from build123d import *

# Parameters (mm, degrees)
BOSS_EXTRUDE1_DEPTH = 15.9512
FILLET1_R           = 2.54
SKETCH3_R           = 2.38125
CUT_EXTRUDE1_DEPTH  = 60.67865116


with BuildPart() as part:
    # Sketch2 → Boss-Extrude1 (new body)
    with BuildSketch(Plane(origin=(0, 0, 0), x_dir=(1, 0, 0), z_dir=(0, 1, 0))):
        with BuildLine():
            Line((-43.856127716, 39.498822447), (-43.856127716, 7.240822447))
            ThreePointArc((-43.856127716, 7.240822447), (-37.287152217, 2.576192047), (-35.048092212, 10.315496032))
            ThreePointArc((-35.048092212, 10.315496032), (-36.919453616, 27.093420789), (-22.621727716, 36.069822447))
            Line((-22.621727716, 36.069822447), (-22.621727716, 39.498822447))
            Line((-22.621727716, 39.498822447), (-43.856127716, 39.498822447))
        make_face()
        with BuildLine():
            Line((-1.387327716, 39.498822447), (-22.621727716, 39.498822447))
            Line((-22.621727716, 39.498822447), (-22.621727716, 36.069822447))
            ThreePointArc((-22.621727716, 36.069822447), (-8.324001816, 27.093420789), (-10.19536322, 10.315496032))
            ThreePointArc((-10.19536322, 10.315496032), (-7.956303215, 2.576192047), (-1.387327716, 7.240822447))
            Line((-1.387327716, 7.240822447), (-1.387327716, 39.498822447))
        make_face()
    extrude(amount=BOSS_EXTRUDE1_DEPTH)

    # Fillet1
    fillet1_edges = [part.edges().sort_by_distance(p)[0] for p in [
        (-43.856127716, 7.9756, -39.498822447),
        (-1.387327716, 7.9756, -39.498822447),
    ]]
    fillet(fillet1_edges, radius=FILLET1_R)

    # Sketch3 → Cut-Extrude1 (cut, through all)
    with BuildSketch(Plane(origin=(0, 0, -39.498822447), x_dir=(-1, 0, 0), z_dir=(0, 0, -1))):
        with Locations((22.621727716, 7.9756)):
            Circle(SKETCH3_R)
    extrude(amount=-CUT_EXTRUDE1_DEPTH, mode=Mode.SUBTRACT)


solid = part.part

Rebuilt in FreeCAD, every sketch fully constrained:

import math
import FreeCAD as App
import Part
import Sketcher
Q = App.Units.Quantity


def edges_at(feature, points):
    """Names of the edges that pass closest to the given points."""
    edges = feature.Shape.Edges
    near = lambda p: min(range(len(edges)), key=lambda i: edges[i].distToShape(Part.Vertex(*p))[0])
    return sorted({f"Edge{near(p) + 1}" for p in points})

doc = App.newDocument("Part")
body = doc.addObject("PartDesign::Body", "Body")

sketch1 = doc.addObject("Sketcher::SketchObject", "Sketch")
body.addObject(sketch1)
sketch1.AttachmentSupport = (doc.XZ_Plane, [""])
sketch1.MapMode = "FlatFace"
sketch1.addGeometry(Part.LineSegment(App.Vector(-43.9, -39.5, 0), App.Vector(-43.9, -7.2, 0)), False)
sketch1.addGeometry(Part.ArcOfCircle(Part.Circle(App.Vector(-38.9, -7.2, 0), App.Vector(0, 0, 1), 4.9), math.radians(-38), math.radians(180)), False)
sketch1.addGeometry(Part.ArcOfCircle(Part.Circle(App.Vector(-22.6, -20.2, 0), App.Vector(0, 0, 1), 15.9), math.radians(142), math.radians(270)), False)
sketch1.addGeometry(Part.ArcOfCircle(Part.Circle(App.Vector(-22.6, -20.2, 0), App.Vector(0, 0, 1), 15.9), math.radians(-90), math.radians(38)), False)
sketch1.addGeometry(Part.ArcOfCircle(Part.Circle(App.Vector(-6.3, -7.2, 0), App.Vector(0, 0, 1), 4.9), math.radians(0), math.radians(218)), False)
sketch1.addGeometry(Part.LineSegment(App.Vector(-1.4, -7.2, 0), App.Vector(-1.4, -39.5, 0)), False)
sketch1.addGeometry(Part.LineSegment(App.Vector(-1.4, -39.5, 0), App.Vector(-43.9, -39.5, 0)), False)
sketch1.addConstraint(Sketcher.Constraint("Tangent", 0, 2, 1, 2))
sketch1.addConstraint(Sketcher.Constraint("Tangent", 1, 1, 2, 1))
sketch1.addConstraint(Sketcher.Constraint("Tangent", 2, 2, 3, 1))
sketch1.addConstraint(Sketcher.Constraint("Tangent", 3, 2, 4, 2))
sketch1.addConstraint(Sketcher.Constraint("Tangent", 4, 1, 5, 1))
sketch1.addConstraint(Sketcher.Constraint("Coincident", 5, 2, 6, 1))
sketch1.addConstraint(Sketcher.Constraint("Coincident", 6, 2, 0, 1))
sketch1.addConstraint(Sketcher.Constraint("Vertical", 0))
sketch1.addConstraint(Sketcher.Constraint("Vertical", 5))
sketch1.addConstraint(Sketcher.Constraint("Horizontal", 6))
sketch1.addConstraint(Sketcher.Constraint("Equal", 2, 3))
sketch1.addConstraint(Sketcher.Constraint("Equal", 1, 4))
sketch1.addConstraint(Sketcher.Constraint("Horizontal", 1, 3, 4, 3))
sketch1.addConstraint(Sketcher.Constraint("Vertical", 3, 3, 2, 2))
sketch1.addConstraint(Sketcher.Constraint("Radius", 2, Q("0.625 in")))
sketch1.addConstraint(Sketcher.Constraint("DistanceY", 0, 1, 0, 2, Q("1.27 in")))
sketch1.addConstraint(Sketcher.Constraint("DistanceX", 6, 2, 6, 1, Q("1.672 in")))
sketch1.addConstraint(Sketcher.Constraint("DistanceY", 2, 3, 1, 3, Q("0.51 in")))
sketch1.addConstraint(Sketcher.Constraint("DistanceX", 1, 3, -1, 1, Q("38.915463 mm")))
sketch1.addConstraint(Sketcher.Constraint("DistanceY", 1, 3, -1, 1, Q("7.240822 mm")))
pad1 = doc.addObject("PartDesign::Pad", "Pad")
body.addObject(pad1)
pad1.Profile = sketch1
pad1.Length = Q("0.628 in")
pad1.Reversed = True
doc.recompute()

fillet = doc.addObject("PartDesign::Fillet", "Fillet")
body.addObject(fillet)
fillet.Base = (pad1, edges_at(pad1, [(-43.856, 7.976, -39.499), (-1.387, 7.976, -39.499)]))
fillet.Radius = Q("0.1 in")

sketch2 = doc.addObject("Sketcher::SketchObject", "Sketch001")
body.addObject(sketch2)
sketch2.AttachmentSupport = (doc.XY_Plane, [""])
sketch2.MapMode = "FlatFace"
sketch2.AttachmentOffset = App.Placement(App.Vector(0, 0, -39.498822), App.Rotation())
sketch2.addGeometry(Part.Circle(App.Vector(-22.6, 8, 0), App.Vector(0, 0, 1), 2.4), False)
sketch2.addConstraint(Sketcher.Constraint("Diameter", 0, Q("0.1875 in")))
sketch2.addConstraint(Sketcher.Constraint("DistanceY", -1, 1, 0, 3, Q("0.314 in")))
sketch2.addConstraint(Sketcher.Constraint("DistanceX", 0, 3, -1, 1, Q("22.621728 mm")))
pocket1 = doc.addObject("PartDesign::Pocket", "Pocket")
body.addObject(pocket1)
pocket1.Profile = sketch2
pocket1.Type = "ThroughAll"
pocket1.Reversed = True

doc.recompute()
